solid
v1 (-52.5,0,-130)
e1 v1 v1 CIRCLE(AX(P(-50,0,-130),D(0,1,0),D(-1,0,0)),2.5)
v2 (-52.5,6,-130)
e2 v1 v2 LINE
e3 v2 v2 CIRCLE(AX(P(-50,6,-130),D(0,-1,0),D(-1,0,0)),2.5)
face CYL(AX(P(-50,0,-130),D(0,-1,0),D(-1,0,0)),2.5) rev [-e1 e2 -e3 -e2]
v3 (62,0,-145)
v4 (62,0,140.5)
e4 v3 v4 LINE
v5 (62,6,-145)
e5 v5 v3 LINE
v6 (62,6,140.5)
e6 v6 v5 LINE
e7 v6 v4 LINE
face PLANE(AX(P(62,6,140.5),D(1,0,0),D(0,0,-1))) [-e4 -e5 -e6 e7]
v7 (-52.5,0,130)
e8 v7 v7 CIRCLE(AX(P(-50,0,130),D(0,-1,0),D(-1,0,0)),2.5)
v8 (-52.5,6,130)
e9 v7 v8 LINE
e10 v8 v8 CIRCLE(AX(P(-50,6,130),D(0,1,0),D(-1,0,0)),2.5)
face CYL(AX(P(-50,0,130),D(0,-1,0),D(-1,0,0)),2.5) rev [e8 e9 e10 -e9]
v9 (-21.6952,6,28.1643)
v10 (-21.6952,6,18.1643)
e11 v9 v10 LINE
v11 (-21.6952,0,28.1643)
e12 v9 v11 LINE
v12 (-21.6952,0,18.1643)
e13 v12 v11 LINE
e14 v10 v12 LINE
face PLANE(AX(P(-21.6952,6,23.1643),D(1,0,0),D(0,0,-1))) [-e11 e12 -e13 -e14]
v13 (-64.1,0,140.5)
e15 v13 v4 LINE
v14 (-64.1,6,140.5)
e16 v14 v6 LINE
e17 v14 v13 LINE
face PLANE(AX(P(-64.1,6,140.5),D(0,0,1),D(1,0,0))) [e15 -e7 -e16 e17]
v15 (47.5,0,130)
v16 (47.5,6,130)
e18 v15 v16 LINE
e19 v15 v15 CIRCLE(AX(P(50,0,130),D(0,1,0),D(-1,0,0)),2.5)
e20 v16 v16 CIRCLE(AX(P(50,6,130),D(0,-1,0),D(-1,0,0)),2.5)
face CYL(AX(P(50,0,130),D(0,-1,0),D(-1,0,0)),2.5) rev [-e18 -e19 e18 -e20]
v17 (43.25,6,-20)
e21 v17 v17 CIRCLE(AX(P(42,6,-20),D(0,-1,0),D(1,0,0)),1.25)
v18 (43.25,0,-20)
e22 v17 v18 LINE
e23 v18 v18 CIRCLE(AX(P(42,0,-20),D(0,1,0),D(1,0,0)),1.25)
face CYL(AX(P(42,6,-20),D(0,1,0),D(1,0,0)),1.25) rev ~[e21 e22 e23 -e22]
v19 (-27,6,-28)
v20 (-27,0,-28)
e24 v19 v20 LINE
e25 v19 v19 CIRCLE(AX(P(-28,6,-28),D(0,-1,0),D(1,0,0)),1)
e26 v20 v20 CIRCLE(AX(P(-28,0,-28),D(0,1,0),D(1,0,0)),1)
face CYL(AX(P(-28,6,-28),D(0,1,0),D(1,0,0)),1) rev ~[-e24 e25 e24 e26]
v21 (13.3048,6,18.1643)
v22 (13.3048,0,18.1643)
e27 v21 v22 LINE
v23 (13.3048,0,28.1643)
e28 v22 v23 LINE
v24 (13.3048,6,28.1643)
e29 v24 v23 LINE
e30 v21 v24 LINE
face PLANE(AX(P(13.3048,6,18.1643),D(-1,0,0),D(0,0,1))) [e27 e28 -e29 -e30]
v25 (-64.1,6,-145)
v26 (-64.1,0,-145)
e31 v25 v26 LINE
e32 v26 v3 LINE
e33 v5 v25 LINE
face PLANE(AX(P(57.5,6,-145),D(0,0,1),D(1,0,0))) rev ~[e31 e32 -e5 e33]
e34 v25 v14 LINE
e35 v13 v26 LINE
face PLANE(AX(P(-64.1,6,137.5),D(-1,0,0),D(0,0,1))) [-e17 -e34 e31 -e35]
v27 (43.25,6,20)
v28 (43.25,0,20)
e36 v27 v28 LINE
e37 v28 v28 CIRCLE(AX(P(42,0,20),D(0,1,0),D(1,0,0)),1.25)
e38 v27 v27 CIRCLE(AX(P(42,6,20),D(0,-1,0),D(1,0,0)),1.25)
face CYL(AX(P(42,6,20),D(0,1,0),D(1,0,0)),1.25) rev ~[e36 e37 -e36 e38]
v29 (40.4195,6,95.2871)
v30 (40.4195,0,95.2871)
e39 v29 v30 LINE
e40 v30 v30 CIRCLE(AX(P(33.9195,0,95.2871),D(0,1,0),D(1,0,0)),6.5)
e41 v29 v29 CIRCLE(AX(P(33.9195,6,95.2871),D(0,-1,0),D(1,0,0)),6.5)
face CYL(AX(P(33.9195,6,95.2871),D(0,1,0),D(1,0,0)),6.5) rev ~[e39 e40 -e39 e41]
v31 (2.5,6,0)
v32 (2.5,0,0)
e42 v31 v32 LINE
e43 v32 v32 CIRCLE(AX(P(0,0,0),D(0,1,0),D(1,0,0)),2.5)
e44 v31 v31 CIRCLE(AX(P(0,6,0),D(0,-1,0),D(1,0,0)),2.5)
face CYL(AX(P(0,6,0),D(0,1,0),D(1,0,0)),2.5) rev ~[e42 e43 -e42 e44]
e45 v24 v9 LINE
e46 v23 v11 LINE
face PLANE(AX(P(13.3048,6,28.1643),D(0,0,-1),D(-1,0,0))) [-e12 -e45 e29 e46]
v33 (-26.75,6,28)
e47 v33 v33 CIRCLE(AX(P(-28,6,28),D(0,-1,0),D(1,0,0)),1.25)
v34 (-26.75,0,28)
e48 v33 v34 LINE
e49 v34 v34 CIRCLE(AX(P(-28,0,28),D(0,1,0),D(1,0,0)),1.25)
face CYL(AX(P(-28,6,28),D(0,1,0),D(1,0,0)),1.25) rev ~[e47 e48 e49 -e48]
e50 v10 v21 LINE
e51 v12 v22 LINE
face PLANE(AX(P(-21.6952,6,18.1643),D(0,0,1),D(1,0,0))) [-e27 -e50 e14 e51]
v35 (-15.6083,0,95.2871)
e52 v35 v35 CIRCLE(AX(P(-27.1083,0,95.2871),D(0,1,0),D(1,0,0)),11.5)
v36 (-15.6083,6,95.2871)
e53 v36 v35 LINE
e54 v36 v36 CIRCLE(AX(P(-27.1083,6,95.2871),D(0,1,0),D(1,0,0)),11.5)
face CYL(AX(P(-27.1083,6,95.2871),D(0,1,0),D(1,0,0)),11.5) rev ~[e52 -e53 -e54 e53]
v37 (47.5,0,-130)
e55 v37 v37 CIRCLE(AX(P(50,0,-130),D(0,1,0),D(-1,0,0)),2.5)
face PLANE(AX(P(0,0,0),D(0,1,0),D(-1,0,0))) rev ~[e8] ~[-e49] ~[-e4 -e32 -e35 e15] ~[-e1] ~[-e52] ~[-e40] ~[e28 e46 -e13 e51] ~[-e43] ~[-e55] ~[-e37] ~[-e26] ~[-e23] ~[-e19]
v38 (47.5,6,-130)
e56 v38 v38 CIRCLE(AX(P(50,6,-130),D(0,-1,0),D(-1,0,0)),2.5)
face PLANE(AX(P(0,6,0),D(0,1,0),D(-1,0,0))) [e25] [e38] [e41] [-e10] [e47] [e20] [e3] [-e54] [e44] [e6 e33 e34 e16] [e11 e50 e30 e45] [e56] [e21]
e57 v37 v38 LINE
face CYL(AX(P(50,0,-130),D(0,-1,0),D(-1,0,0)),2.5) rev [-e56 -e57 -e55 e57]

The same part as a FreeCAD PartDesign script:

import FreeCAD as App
import Part
import Sketcher

V = App.Vector
Q = App.Units.Quantity


def add_polygon(sketch, points):
    """Adds a closed chain of lines whose ends are joined by coincident constraints."""
    first, n = sketch.GeometryCount, len(points)
    for a, b in zip(points, points[1:] + points[:1]):
        sketch.addGeometry(Part.LineSegment(App.Vector(*a, 0), App.Vector(*b, 0)), False)
    for i in range(n):
        sketch.addConstraint(Sketcher.Constraint("Coincident", first + i, 2, first + (i + 1) % n, 1))

doc = App.newDocument("Part")
body = doc.addObject("PartDesign::Body", "Body")

# Sketch on XZ plane
sketch1 = body.newObject("Sketcher::SketchObject", "Sketch")
sketch1.AttachmentSupport = (doc.getObject("XZ_Plane"), [""])
sketch1.MapMode = "FlatFace"
add_polygon(sketch1, [(-57.5, -137.5), (-57.5, 137.5), (57.5, 137.5), (57.5, -137.5)])  # lines 0-3
sketch1.addGeometry(Part.Circle(V(-50, 130, 0), V(0, 0, 1), 2.5), False)  # 4
sketch1.addGeometry(Part.Circle(V(-50, -130, 0), V(0, 0, 1), 2.5), False)  # 5
sketch1.addGeometry(Part.Circle(V(50, -130, 0), V(0, 0, 1), 2.5), False)  # 6
sketch1.addGeometry(Part.Circle(V(50, 130, 0), V(0, 0, 1), 2.5), False)  # 7
sketch1.addConstraint([
    Sketcher.Constraint("Vertical", 0),
    Sketcher.Constraint("Horizontal", 1),
    Sketcher.Constraint("Vertical", 2),
    Sketcher.Constraint("Horizontal", 3),
    Sketcher.Constraint("Equal", 4, 5),
    Sketcher.Constraint("Equal", 5, 6),
    Sketcher.Constraint("Equal", 6, 7),
    Sketcher.Constraint("Symmetric", 4, 3, 6, 3, -1, 1),
    Sketcher.Constraint("Symmetric", 5, 3, 7, 3, -1, 1),
    Sketcher.Constraint("Symmetric", 0, 2, 2, 2, -1, 1),
    Sketcher.Constraint("Symmetric", 5, 3, 6, 3, -2),
    Sketcher.Constraint("Diameter", 4, Q("5 mm")),
    Sketcher.Constraint("DistanceX", 1, 1, 1, 2, Q("115 mm")),
    Sketcher.Constraint("DistanceY", 0, 1, 0, 2, Q("275 mm")),
    Sketcher.Constraint("DistanceY", 5, 3, 4, 3, Q("260 mm")),
    Sketcher.Constraint("DistanceX", 5, 3, 6, 3, Q("100 mm")),
])
pad1 = body.newObject("PartDesign::Pad", "Pad")
pad1.Profile = sketch1
pad1.Length = 6
pad1.Reversed = True

# Sketch on XZ plane
sketch2 = body.newObject("Sketcher::SketchObject", "Sketch001")
sketch2.AttachmentSupport = (doc.getObject("XZ_Plane"), [""])
sketch2.MapMode = "FlatFace"
sketch2.AttachmentOffset = App.Placement(V(0, 0, -6), App.Rotation())
sketch2.addGeometry(Part.Circle(V(0, 0, 0), V(0, 0, 1), 2.5), False)  # 0
sketch2.addGeometry(Part.Circle(V(-28, 28, 0), V(0, 0, 1), 1.25), False)  # 1
sketch2.addGeometry(Part.Circle(V(-28, -28, 0), V(0, 0, 1), 1), False)  # 2
sketch2.addGeometry(Part.Circle(V(42, -20, 0), V(0, 0, 1), 1.25), False)  # 3
sketch2.addGeometry(Part.Circle(V(42, 20, 0), V(0, 0, 1), 1.25), False)  # 4
add_polygon(sketch2, [(-21.6952, 18.1643), (-21.6952, 28.1643), (13.3048, 28.1643), (13.3048, 18.1643)])  # lines 5-8
sketch2.addConstraint([
    Sketcher.Constraint("Vertical", 5),
    Sketcher.Constraint("Horizontal", 6),
    Sketcher.Constraint("Vertical", 7),
    Sketcher.Constraint("Horizontal", 8),
    Sketcher.Constraint("Coincident", 0, 3, -1, 1),
    Sketcher.Constraint("Equal", 1, 3),
    Sketcher.Constraint("Equal", 3, 4),
    Sketcher.Constraint("Symmetric", 1, 3, 2, 3, -1),
    Sketcher.Constraint("Symmetric", 3, 3, 4, 3, -1),
    Sketcher.Constraint("Diameter", 0, Q("5 mm")),
    Sketcher.Constraint("Diameter", 2, Q("2 mm")),
    Sketcher.Constraint("Diameter", 1, Q("2.5 mm")),
    Sketcher.Constraint("DistanceX", 6, 1, 6, 2, Q("35 mm")),
    Sketcher.Constraint("DistanceX", 1, 3, -1, 1, Q("28 mm")),
    Sketcher.Constraint("DistanceY", -1, 1, 1, 3, Q("28 mm")),
    Sketcher.Constraint("DistanceX", -1, 1, 3, 3, Q("42 mm")),
    Sketcher.Constraint("DistanceY", 3, 3, -1, 1, Q("20 mm")),
    Sketcher.Constraint("DistanceY", 5, 1, 5, 2, Q("10 mm")),
    Sketcher.Constraint("DistanceX", 5, 2, -1, 1, Q("21.6952 mm")),
    Sketcher.Constraint("DistanceY", -1, 1, 5, 2, Q("28.1643 mm")),
])
pocket1 = body.newObject("PartDesign::Pocket", "Pocket")
pocket1.Profile = sketch2
pocket1.Length = 6
pocket1.Reversed = True

# Sketch on XZ plane
sketch3 = body.newObject("Sketcher::SketchObject", "Sketch002")
sketch3.AttachmentSupport = (doc.getObject("XZ_Plane"), [""])
sketch3.MapMode = "FlatFace"
sketch3.AttachmentOffset = App.Placement(V(0, 0, -6), App.Rotation())
sketch3.addGeometry([
    Part.Circle(V(-27.1083, 95.2871, 0), V(0, 0, 1), 11.5),
    Part.Circle(V(33.9195, 95.2871, 0), V(0, 0, 1), 6.5),
], False)
sketch3.addConstraint([
    Sketcher.Constraint("Horizontal", 0, 3, 1, 3),
    Sketcher.Constraint("Diameter", 0, Q("23 mm")),
    Sketcher.Constraint("Diameter", 1, Q("13 mm")),
    Sketcher.Constraint("DistanceY", -1, 1, 0, 3, Q("95.287 mm")),
    Sketcher.Constraint("DistanceX", 0, 3, -1, 1, Q("27.1083 mm")),
    Sketcher.Constraint("DistanceX", -1, 1, 1, 3, Q("33.9195 mm")),
])
pocket2 = body.newObject("PartDesign::Pocket", "Pocket001")
pocket2.Profile = sketch3
pocket2.Length = 10
pocket2.Reversed = True

# Sketch on XZ plane
sketch4 = body.newObject("Sketcher::SketchObject", "Sketch003")
sketch4.AttachmentSupport = (doc.getObject("XZ_Plane"), [""])
sketch4.MapMode = "FlatFace"
sketch4.AttachmentOffset = App.Placement(V(0, 0, -6), App.Rotation())
add_polygon(sketch4, [(62, 140.5), (62, -145), (-64.1, -145), (-64.1, 140.5)])  # lines 0-3
add_polygon(sketch4, [(57.5, 137.5), (-57.5, 137.5), (-57.5, -137.5), (57.5, -137.5)])  # lines 4-7
sketch4.addConstraint([
    Sketcher.Constraint("Vertical", 0),
    Sketcher.Constraint("Horizontal", 1),
    Sketcher.Constraint("Vertical", 2),
    Sketcher.Constraint("Horizontal", 3),
    Sketcher.Constraint("Horizontal", 4),
    Sketcher.Constraint("Vertical", 5),
    Sketcher.Constraint("Horizontal", 6),
    Sketcher.Constraint("Vertical", 7),
    Sketcher.Constraint("Symmetric", 4, 2, 6, 2, -1, 1),
    Sketcher.Constraint("DistanceY", 4, 2, 2, 2, Q("3 mm")),
    Sketcher.Constraint("DistanceX", 2, 2, 4, 2, Q("6.6 mm")),
    Sketcher.Constraint("DistanceY", 1, 2, 5, 2, Q("7.5 mm")),
    Sketcher.Constraint("DistanceX", 6, 2, 0, 2, Q("4.5 mm")),
    Sketcher.Constraint("DistanceX", 4, 2, 4, 1, Q("115 mm")),
    Sketcher.Constraint("DistanceY", 5, 2, 5, 1, Q("275 mm")),
])
pad2 = body.newObject("PartDesign::Pad", "Pad001")
pad2.Profile = sketch4
pad2.Length = 6

doc.recompute()
